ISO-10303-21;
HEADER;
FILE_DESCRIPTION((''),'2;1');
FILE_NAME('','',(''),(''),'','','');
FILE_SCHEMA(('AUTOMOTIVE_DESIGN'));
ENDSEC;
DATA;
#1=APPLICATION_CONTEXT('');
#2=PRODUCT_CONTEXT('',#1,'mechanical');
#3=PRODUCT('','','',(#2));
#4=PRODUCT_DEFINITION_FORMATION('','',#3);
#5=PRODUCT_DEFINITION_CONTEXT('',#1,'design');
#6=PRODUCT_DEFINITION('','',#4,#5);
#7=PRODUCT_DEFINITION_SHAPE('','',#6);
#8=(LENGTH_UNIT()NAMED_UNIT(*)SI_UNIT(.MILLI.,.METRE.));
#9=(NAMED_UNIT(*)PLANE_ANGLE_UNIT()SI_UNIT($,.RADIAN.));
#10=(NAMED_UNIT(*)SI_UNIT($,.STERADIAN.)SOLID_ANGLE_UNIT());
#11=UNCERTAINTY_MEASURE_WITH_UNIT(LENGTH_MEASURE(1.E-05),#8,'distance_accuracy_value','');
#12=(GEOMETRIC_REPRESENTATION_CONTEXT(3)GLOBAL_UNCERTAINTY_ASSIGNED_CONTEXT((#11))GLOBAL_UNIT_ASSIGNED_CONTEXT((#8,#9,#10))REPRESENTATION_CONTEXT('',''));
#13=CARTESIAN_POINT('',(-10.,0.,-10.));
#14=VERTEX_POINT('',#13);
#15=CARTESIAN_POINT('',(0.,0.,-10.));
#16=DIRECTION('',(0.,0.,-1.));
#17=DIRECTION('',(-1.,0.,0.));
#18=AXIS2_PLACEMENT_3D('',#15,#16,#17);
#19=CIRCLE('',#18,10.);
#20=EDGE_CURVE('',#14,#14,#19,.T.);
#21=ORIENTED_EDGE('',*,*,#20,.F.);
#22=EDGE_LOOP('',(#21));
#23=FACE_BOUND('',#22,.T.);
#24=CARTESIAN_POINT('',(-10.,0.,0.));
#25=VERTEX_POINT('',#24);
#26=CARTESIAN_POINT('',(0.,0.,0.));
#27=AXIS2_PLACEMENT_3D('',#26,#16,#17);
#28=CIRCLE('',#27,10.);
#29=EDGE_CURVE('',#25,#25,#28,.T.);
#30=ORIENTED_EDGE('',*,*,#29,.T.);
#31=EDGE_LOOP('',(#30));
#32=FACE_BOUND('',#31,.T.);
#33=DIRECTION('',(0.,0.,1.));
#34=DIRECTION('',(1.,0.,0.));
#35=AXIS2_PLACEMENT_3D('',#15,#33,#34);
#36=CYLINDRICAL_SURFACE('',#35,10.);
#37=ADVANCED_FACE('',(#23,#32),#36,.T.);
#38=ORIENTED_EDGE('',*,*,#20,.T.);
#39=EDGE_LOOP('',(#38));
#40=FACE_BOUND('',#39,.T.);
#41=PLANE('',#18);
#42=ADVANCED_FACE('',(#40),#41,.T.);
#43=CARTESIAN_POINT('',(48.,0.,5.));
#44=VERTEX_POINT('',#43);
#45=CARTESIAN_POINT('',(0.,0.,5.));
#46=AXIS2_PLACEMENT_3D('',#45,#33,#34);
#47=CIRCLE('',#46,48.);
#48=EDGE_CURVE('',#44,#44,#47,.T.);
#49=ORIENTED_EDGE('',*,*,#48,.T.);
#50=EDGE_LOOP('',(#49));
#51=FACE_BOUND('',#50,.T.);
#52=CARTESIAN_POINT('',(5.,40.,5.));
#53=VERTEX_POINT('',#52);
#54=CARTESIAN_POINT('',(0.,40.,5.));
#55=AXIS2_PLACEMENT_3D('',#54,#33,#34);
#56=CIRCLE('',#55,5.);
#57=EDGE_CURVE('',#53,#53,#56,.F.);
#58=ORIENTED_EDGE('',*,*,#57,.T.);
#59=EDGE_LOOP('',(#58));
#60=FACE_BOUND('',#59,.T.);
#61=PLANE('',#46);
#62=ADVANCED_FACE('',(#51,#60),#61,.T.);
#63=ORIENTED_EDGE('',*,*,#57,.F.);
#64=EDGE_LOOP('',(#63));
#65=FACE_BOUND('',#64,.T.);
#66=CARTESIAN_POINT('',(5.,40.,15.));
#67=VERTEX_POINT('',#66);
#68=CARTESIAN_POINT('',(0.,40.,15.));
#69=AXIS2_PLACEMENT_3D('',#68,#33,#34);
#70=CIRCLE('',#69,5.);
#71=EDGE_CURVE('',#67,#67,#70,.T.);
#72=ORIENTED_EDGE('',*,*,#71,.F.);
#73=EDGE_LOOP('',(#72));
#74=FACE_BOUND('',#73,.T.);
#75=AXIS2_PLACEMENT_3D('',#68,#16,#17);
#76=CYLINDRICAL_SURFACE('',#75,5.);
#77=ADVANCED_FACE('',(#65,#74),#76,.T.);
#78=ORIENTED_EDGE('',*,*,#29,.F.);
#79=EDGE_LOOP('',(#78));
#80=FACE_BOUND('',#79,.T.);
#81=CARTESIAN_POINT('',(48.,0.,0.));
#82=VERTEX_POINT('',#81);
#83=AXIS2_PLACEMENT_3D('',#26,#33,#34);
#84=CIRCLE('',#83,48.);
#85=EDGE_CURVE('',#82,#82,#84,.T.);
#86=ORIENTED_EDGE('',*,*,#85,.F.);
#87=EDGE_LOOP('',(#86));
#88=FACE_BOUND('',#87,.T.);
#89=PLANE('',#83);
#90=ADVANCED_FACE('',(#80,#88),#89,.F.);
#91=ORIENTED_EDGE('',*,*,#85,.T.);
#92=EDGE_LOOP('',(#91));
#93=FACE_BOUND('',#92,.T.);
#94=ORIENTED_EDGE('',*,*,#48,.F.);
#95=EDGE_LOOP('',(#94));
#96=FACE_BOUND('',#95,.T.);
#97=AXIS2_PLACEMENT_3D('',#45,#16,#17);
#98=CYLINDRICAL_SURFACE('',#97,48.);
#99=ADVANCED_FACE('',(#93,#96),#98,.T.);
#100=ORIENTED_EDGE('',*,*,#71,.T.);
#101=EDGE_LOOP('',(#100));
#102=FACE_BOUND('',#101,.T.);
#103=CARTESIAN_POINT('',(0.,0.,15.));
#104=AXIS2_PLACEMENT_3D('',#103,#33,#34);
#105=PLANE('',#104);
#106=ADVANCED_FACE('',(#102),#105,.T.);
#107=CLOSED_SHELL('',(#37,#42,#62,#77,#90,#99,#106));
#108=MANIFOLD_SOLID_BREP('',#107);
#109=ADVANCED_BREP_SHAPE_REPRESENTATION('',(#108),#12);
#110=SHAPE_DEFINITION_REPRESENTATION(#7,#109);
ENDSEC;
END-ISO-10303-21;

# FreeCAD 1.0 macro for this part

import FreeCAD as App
import Part
import Sketcher
Q = App.Units.Quantity

doc = App.newDocument("Part")
params = doc.addObject("Spreadsheet::Sheet", "Params")
for row, (alias, value) in enumerate([
    ("sketch1_diameter", "96 mm"),
    ("pad1_length", "5 mm"),
    ("sketch2_diameter", "10 mm"),
    ("pad2_length", "15 mm"),
    ("sketch3_diameter", "20 mm"),
    ("pad3_length", "10 mm"),
], start=1):
    params.set(f"A{row}", alias)
    params.set(f"B{row}", "=" + value)
    params.setAlias(f"B{row}", alias)

body = doc.addObject("PartDesign::Body", "Body")

sketch1 = body.newObject("Sketcher::SketchObject", "Sketch")
sketch1.AttachmentSupport = (doc.getObject("XY_Plane"), [""])
sketch1.MapMode = "FlatFace"
sketch1.addGeometry(Part.Circle(App.Vector(0, 0, 0), App.Vector(0, 0, 1), 48), False)
sketch1.addConstraint(Sketcher.Constraint("Coincident", 0, 3, -1, 1))
sketch1.addConstraint(Sketcher.Constraint("Diameter", 0, Q("96 mm")))
sketch1.setExpression("Constraints[1]", "Params.sketch1_diameter")
pad1 = body.newObject("PartDesign::Pad", "Pad")
pad1.Profile = sketch1
pad1.setExpression("Length", "Params.pad1_length")

sketch2 = body.newObject("Sketcher::SketchObject", "Sketch001")
sketch2.AttachmentSupport = (doc.getObject("XY_Plane"), [""])
sketch2.MapMode = "FlatFace"
sketch2.addGeometry(Part.Circle(App.Vector(0, 40, 0), App.Vector(0, 0, 1), 5), False)
sketch2.addConstraint(Sketcher.Constraint("PointOnObject", 0, 3, -2))
sketch2.addConstraint(Sketcher.Constraint("Diameter", 0, Q("10 mm")))
sketch2.addConstraint(Sketcher.Constraint("DistanceY", -1, 1, 0, 3, Q("40 mm")))
sketch2.setExpression("Constraints[1]", "Params.sketch2_diameter")
pad2 = body.newObject("PartDesign::Pad", "Pad001")
pad2.Profile = sketch2
pad2.setExpression("Length", "Params.pad2_length")

sketch3 = body.newObject("Sketcher::SketchObject", "Sketch002")
sketch3.AttachmentSupport = (doc.getObject("XY_Plane"), [""])
sketch3.MapMode = "FlatFace"
sketch3.addGeometry(Part.Circle(App.Vector(0, 0, 0), App.Vector(0, 0, 1), 10), False)
sketch3.addConstraint(Sketcher.Constraint("Coincident", 0, 3, -1, 1))
sketch3.addConstraint(Sketcher.Constraint("Diameter", 0, Q("20 mm")))
sketch3.setExpression("Constraints[1]", "Params.sketch3_diameter")
pad3 = body.newObject("PartDesign::Pad", "Pad002")
pad3.Profile = sketch3
pad3.setExpression("Length", "Params.pad3_length")
pad3.Reversed = True

doc.recompute()
